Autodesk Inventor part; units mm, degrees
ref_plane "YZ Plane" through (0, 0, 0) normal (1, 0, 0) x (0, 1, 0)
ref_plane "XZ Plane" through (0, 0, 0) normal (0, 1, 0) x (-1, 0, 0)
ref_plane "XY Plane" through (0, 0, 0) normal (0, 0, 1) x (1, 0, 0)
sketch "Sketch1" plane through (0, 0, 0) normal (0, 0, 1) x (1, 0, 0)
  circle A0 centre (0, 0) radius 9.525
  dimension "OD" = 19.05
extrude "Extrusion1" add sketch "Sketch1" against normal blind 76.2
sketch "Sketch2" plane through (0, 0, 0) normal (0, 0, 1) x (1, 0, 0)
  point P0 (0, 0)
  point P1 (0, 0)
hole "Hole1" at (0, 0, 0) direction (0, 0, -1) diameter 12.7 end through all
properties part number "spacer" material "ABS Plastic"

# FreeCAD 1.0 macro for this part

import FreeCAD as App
import Part
import Sketcher

V = App.Vector
Q = App.Units.Quantity

doc = App.newDocument("Part")
body = doc.addObject("PartDesign::Body", "Body")

sketch1 = body.newObject("Sketcher::SketchObject", "Sketch")
sketch1.AttachmentSupport = (doc.getObject("XY_Plane"), [""])
sketch1.MapMode = "FlatFace"
sketch1.addGeometry(Part.Circle(V(0, 0, 0), V(0, 0, 1), 10), False)
sketch1.addConstraint(Sketcher.Constraint("Coincident", 0, 3, -1, 1))
sketch1.addConstraint(Sketcher.Constraint("Diameter", 0, Q("0.75 in")))
pad1 = body.newObject("PartDesign::Pad", "Pad")
pad1.Profile = sketch1
pad1.Length = Q("3 in")
pad1.Reversed = True

sketch2 = body.newObject("Sketcher::SketchObject", "Sketch001")
sketch2.AttachmentSupport = (doc.getObject("XY_Plane"), [""])
sketch2.MapMode = "FlatFace"
sketch2.addGeometry(Part.Circle(V(0, 0, 0), V(0, 0, 1), 6), False)
sketch2.addConstraint(Sketcher.Constraint("Coincident", 0, 3, -1, 1))
sketch2.addConstraint(Sketcher.Constraint("Diameter", 0, Q("0.5 in")))
doc.recompute()
hole = body.newObject("PartDesign::Hole", "Hole")
hole.Profile = sketch2
hole.ThreadType = "None"
hole.Diameter = Q("0.5 in")
hole.DepthType = "ThroughAll"

doc.recompute()
